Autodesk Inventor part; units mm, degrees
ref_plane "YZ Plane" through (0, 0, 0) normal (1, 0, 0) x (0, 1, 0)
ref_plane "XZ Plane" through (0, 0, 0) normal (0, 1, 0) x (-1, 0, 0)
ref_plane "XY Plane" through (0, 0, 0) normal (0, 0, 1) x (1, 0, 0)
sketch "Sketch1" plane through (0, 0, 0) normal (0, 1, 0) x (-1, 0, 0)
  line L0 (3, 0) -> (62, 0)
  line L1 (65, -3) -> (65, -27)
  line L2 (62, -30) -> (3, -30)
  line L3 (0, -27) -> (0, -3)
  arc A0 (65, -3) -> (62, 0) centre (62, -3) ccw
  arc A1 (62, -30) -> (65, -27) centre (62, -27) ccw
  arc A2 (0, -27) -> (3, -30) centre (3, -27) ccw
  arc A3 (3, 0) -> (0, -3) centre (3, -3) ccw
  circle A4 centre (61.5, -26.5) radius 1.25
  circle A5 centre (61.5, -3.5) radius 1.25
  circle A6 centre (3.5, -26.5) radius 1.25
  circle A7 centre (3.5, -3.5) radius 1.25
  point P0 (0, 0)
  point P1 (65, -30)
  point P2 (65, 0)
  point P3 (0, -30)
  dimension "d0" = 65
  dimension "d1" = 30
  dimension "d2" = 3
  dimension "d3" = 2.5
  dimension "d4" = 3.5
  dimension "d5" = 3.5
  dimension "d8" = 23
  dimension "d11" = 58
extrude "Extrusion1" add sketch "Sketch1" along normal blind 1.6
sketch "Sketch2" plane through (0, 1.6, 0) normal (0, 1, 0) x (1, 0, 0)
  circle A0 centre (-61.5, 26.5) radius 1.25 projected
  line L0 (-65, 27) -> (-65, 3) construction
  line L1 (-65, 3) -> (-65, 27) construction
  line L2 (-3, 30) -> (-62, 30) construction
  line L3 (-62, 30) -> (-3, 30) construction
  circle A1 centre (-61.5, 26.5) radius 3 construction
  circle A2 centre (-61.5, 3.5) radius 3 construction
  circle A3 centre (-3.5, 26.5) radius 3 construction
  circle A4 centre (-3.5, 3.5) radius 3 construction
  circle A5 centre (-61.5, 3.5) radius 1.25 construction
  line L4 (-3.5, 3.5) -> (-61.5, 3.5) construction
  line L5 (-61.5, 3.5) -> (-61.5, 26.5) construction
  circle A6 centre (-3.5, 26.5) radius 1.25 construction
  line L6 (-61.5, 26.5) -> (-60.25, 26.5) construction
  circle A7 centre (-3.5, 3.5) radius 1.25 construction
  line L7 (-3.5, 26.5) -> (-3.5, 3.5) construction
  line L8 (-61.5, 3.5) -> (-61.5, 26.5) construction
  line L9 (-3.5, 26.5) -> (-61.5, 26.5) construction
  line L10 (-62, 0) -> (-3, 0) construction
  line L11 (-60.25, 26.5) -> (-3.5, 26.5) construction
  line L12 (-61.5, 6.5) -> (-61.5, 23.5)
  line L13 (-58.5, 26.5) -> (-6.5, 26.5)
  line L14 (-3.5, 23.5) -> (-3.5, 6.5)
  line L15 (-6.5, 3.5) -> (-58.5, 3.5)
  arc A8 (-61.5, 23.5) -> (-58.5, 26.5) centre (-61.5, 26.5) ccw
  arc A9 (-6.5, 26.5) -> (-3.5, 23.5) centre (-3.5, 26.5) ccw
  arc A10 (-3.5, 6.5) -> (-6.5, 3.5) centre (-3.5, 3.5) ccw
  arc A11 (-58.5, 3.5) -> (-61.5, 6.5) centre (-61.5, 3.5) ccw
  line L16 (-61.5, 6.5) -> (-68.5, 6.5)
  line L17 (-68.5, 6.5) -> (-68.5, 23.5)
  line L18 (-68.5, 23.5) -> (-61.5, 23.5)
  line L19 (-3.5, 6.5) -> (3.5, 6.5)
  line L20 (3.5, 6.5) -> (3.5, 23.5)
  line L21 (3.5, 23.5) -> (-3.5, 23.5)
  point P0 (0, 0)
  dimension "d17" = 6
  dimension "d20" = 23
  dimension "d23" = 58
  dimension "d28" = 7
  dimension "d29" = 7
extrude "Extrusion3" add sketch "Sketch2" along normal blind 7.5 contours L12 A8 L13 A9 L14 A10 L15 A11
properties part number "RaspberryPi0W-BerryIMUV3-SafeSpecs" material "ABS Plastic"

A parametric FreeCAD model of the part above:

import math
import FreeCAD as App
import Part
import Sketcher
from FreeCAD import Vector
Q = App.Units.Quantity

doc = App.newDocument("Part")
body = doc.addObject("PartDesign::Body", "Body")

sketch1 = doc.addObject("Sketcher::SketchObject", "Sketch")
body.addObject(sketch1)
sketch1.AttachmentSupport = (doc.XZ_Plane, [""])
sketch1.MapMode = "FlatFace"
sketch1.addGeometry(Part.LineSegment(Vector(-62, 0, 0), Vector(-3, 0, 0)), False)
sketch1.addGeometry(Part.ArcOfCircle(Part.Circle(Vector(-3, -3, 0), Vector(0, 0, 1), 3), math.radians(0), math.radians(90)), False)
sketch1.addGeometry(Part.LineSegment(Vector(0, -3, 0), Vector(0, -27, 0)), False)
sketch1.addGeometry(Part.ArcOfCircle(Part.Circle(Vector(-3, -27, 0), Vector(0, 0, 1), 3), math.radians(-90), math.radians(0)), False)
sketch1.addGeometry(Part.LineSegment(Vector(-3, -30, 0), Vector(-62, -30, 0)), False)
sketch1.addGeometry(Part.ArcOfCircle(Part.Circle(Vector(-62, -27, 0), Vector(0, 0, 1), 3), math.radians(180), math.radians(270)), False)
sketch1.addGeometry(Part.LineSegment(Vector(-65, -27, 0), Vector(-65, -3, 0)), False)
sketch1.addGeometry(Part.ArcOfCircle(Part.Circle(Vector(-62, -3, 0), Vector(0, 0, 1), 3), math.radians(90), math.radians(180)), False)
sketch1.addGeometry(Part.Circle(Vector(-3.5, -26.5, 0), Vector(0, 0, 1), 1.2), False)
sketch1.addGeometry(Part.Circle(Vector(-61.5, -26.5, 0), Vector(0, 0, 1), 1.2), False)
sketch1.addGeometry(Part.Circle(Vector(-3.5, -3.5, 0), Vector(0, 0, 1), 1.2), False)
sketch1.addGeometry(Part.Circle(Vector(-61.5, -3.5, 0), Vector(0, 0, 1), 1.2), False)
sketch1.addConstraint(Sketcher.Constraint("Tangent", 0, 2, 1, 2))
sketch1.addConstraint(Sketcher.Constraint("Tangent", 1, 1, 2, 1))
sketch1.addConstraint(Sketcher.Constraint("Tangent", 2, 2, 3, 2))
sketch1.addConstraint(Sketcher.Constraint("Tangent", 3, 1, 4, 1))
sketch1.addConstraint(Sketcher.Constraint("Tangent", 4, 2, 5, 2))
sketch1.addConstraint(Sketcher.Constraint("Tangent", 5, 1, 6, 1))
sketch1.addConstraint(Sketcher.Constraint("Tangent", 6, 2, 7, 2))
sketch1.addConstraint(Sketcher.Constraint("Tangent", 7, 1, 0, 1))
sketch1.addConstraint(Sketcher.Constraint("Horizontal", 0))
sketch1.addConstraint(Sketcher.Constraint("Vertical", 2))
sketch1.addConstraint(Sketcher.Constraint("Horizontal", 4))
sketch1.addConstraint(Sketcher.Constraint("Vertical", 6))
sketch1.addConstraint(Sketcher.Constraint("Equal", 1, 3))
sketch1.addConstraint(Sketcher.Constraint("Equal", 3, 5))
sketch1.addConstraint(Sketcher.Constraint("Equal", 5, 7))
sketch1.addConstraint(Sketcher.Constraint("Equal", 8, 9))
sketch1.addConstraint(Sketcher.Constraint("Equal", 9, 10))
sketch1.addConstraint(Sketcher.Constraint("Equal", 10, 11))
sketch1.addConstraint(Sketcher.Constraint("PointOnObject", 0, 2, -1))
sketch1.addConstraint(Sketcher.Constraint("PointOnObject", 1, 1, -2))
sketch1.addConstraint(Sketcher.Constraint("Horizontal", 8, 3, 9, 3))
sketch1.addConstraint(Sketcher.Constraint("Horizontal", 10, 3, 11, 3))
sketch1.addConstraint(Sketcher.Constraint("Vertical", 8, 3, 10, 3))
sketch1.addConstraint(Sketcher.Constraint("Vertical", 9, 3, 11, 3))
sketch1.addConstraint(Sketcher.Constraint("Radius", 1, Q("3 mm")))
sketch1.addConstraint(Sketcher.Constraint("Diameter", 8, Q("2.5 mm")))
sketch1.addConstraint(Sketcher.Constraint("DistanceY", 3, 1, -1, 1, Q("30 mm")))
sketch1.addConstraint(Sketcher.Constraint("DistanceX", 5, 1, -1, 1, Q("65 mm")))
sketch1.addConstraint(Sketcher.Constraint("DistanceX", 9, 3, 8, 3, Q("58 mm")))
sketch1.addConstraint(Sketcher.Constraint("DistanceY", 8, 3, 10, 3, Q("23 mm")))
sketch1.addConstraint(Sketcher.Constraint("DistanceX", 8, 3, -1, 1, Q("3.5 mm")))
sketch1.addConstraint(Sketcher.Constraint("DistanceY", 10, 3, -1, 1, Q("3.5 mm")))
pad1 = doc.addObject("PartDesign::Pad", "Pad")
body.addObject(pad1)
pad1.Profile = sketch1
pad1.Length = 1.6
pad1.Reversed = True

sketch2 = doc.addObject("Sketcher::SketchObject", "Sketch001")
body.addObject(sketch2)
sketch2.AttachmentSupport = (doc.XZ_Plane, [""])
sketch2.MapMode = "FlatFace"
sketch2.AttachmentOffset = App.Placement(Vector(0, 0, -1.6), App.Rotation())
sketch2.addGeometry(Part.LineSegment(Vector(-61.5, -23.5, 0), Vector(-61.5, -6.5, 0)), False)
sketch2.addGeometry(Part.ArcOfCircle(Part.Circle(Vector(-61.5, -3.5, 0), Vector(0, 0, 1), 3), math.radians(-90), math.radians(0)), False)
sketch2.addGeometry(Part.LineSegment(Vector(-58.5, -3.5, 0), Vector(-6.5, -3.5, 0)), False)
sketch2.addGeometry(Part.ArcOfCircle(Part.Circle(Vector(-3.5, -3.5, 0), Vector(0, 0, 1), 3), math.radians(180), math.radians(270)), False)
sketch2.addGeometry(Part.LineSegment(Vector(-3.5, -6.5, 0), Vector(-3.5, -23.5, 0)), False)
sketch2.addGeometry(Part.ArcOfCircle(Part.Circle(Vector(-3.5, -26.5, 0), Vector(0, 0, 1), 3), math.radians(90), math.radians(180)), False)
sketch2.addGeometry(Part.LineSegment(Vector(-6.5, -26.5, 0), Vector(-58.5, -26.5, 0)), False)
sketch2.addGeometry(Part.ArcOfCircle(Part.Circle(Vector(-61.5, -26.5, 0), Vector(0, 0, 1), 3), math.radians(0), math.radians(90)), False)
sketch2.addConstraint(Sketcher.Constraint("Coincident", 0, 2, 1, 1))
sketch2.addConstraint(Sketcher.Constraint("Coincident", 1, 2, 2, 1))
sketch2.addConstraint(Sketcher.Constraint("Coincident", 2, 2, 3, 1))
sketch2.addConstraint(Sketcher.Constraint("Coincident", 3, 2, 4, 1))
sketch2.addConstraint(Sketcher.Constraint("Coincident", 4, 2, 5, 1))
sketch2.addConstraint(Sketcher.Constraint("Coincident", 5, 2, 6, 1))
sketch2.addConstraint(Sketcher.Constraint("Coincident", 6, 2, 7, 1))
sketch2.addConstraint(Sketcher.Constraint("Coincident", 7, 2, 0, 1))
sketch2.addConstraint(Sketcher.Constraint("Vertical", 0))
sketch2.addConstraint(Sketcher.Constraint("Horizontal", 2))
sketch2.addConstraint(Sketcher.Constraint("Vertical", 4))
sketch2.addConstraint(Sketcher.Constraint("Horizontal", 6))
sketch2.addConstraint(Sketcher.Constraint("Equal", 1, 3))
sketch2.addConstraint(Sketcher.Constraint("Equal", 3, 5))
sketch2.addConstraint(Sketcher.Constraint("Equal", 5, 7))
sketch2.addConstraint(Sketcher.Constraint("Horizontal", 1, 3, 3, 3))
sketch2.addConstraint(Sketcher.Constraint("Horizontal", 5, 3, 7, 3))
sketch2.addConstraint(Sketcher.Constraint("Horizontal", 3, 3, 1, 2))
sketch2.addConstraint(Sketcher.Constraint("Horizontal", 7, 3, 5, 2))
sketch2.addConstraint(Sketcher.Constraint("Vertical", 3, 3, 5, 3))
sketch2.addConstraint(Sketcher.Constraint("Vertical", 1, 3, 7, 3))
sketch2.addConstraint(Sketcher.Constraint("Vertical", 7, 3, 0, 2))
sketch2.addConstraint(Sketcher.Constraint("Vertical", 5, 3, 3, 2))
sketch2.addConstraint(Sketcher.Constraint("Radius", 1, Q("3 mm")))
sketch2.addConstraint(Sketcher.Constraint("DistanceX", 1, 3, 3, 3, Q("58 mm")))
sketch2.addConstraint(Sketcher.Constraint("DistanceY", 5, 3, 3, 3, Q("23 mm")))
sketch2.addConstraint(Sketcher.Constraint("DistanceX", 1, 3, -1, 1, Q("61.5 mm")))
sketch2.addConstraint(Sketcher.Constraint("DistanceY", 1, 3, -1, 1, Q("3.5 mm")))
pad2 = doc.addObject("PartDesign::Pad", "Pad001")
body.addObject(pad2)
pad2.Profile = sketch2
pad2.Length = 7.5
pad2.Reversed = True

doc.recompute()
